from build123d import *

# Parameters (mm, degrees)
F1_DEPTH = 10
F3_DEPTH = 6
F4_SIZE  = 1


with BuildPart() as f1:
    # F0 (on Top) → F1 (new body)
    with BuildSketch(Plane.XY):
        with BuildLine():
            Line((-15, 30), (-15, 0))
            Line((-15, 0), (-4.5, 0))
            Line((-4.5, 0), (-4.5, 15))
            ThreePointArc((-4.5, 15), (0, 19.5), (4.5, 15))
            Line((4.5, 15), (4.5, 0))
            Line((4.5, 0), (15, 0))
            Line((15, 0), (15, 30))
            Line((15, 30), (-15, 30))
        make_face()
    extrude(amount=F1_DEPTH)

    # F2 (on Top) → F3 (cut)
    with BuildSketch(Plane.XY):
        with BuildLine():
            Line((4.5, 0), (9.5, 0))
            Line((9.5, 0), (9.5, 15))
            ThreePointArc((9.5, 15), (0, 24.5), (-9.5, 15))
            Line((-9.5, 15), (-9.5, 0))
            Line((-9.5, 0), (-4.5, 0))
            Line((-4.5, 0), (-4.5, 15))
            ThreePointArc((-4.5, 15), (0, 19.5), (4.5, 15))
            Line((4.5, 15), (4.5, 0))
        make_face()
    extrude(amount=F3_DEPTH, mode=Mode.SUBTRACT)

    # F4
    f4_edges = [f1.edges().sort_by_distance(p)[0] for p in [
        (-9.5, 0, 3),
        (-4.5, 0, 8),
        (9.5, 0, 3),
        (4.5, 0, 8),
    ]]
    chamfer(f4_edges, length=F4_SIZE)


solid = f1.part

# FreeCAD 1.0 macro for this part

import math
import FreeCAD as App
import Part
import Sketcher

V = App.Vector
Q = App.Units.Quantity


def edges_at(feature, points):
    """Names of the edges that pass closest to the given points."""
    edges = feature.Shape.Edges
    near = lambda p: min(range(len(edges)), key=lambda i: edges[i].distToShape(Part.Vertex(*p))[0])
    return sorted({f"Edge{near(p) + 1}" for p in points})

doc = App.newDocument("Part")
body = doc.addObject("PartDesign::Body", "Body")

# Sketch on XY plane
sketch1 = body.newObject("Sketcher::SketchObject", "Sketch")
sketch1.AttachmentSupport = (doc.getObject("XY_Plane"), [""])
sketch1.MapMode = "FlatFace"
sketch1.addGeometry(Part.LineSegment(V(-15, 30, 0), V(-15, 0, 0)), False)
sketch1.addGeometry(Part.LineSegment(V(-15, 0, 0), V(-4.5, 0, 0)), False)
sketch1.addGeometry(Part.LineSegment(V(-4.5, 0, 0), V(-4.5, 15, 0)), False)
sketch1.addGeometry(Part.ArcOfCircle(Part.Circle(V(0, 15, 0), V(0, 0, 1), 4.5), math.radians(0), math.radians(180)), False)
sketch1.addGeometry(Part.LineSegment(V(4.5, 15, 0), V(4.5, 0, 0)), False)
sketch1.addGeometry(Part.LineSegment(V(4.5, 0, 0), V(15, 0, 0)), False)
sketch1.addGeometry(Part.LineSegment(V(15, 0, 0), V(15, 30, 0)), False)
sketch1.addGeometry(Part.LineSegment(V(15, 30, 0), V(-15, 30, 0)), False)
sketch1.addConstraint(Sketcher.Constraint("Coincident", 0, 2, 1, 1))
sketch1.addConstraint(Sketcher.Constraint("Coincident", 1, 2, 2, 1))
sketch1.addConstraint(Sketcher.Constraint("Tangent", 2, 2, 3, 2))
sketch1.addConstraint(Sketcher.Constraint("Tangent", 3, 1, 4, 1))
sketch1.addConstraint(Sketcher.Constraint("Coincident", 4, 2, 5, 1))
sketch1.addConstraint(Sketcher.Constraint("Coincident", 5, 2, 6, 1))
sketch1.addConstraint(Sketcher.Constraint("Coincident", 6, 2, 7, 1))
sketch1.addConstraint(Sketcher.Constraint("Coincident", 7, 2, 0, 1))
sketch1.addConstraint(Sketcher.Constraint("Vertical", 0))
sketch1.addConstraint(Sketcher.Constraint("Horizontal", 1))
sketch1.addConstraint(Sketcher.Constraint("Vertical", 2))
sketch1.addConstraint(Sketcher.Constraint("Vertical", 4))
sketch1.addConstraint(Sketcher.Constraint("Horizontal", 5))
sketch1.addConstraint(Sketcher.Constraint("Vertical", 6))
sketch1.addConstraint(Sketcher.Constraint("Horizontal", 7))
sketch1.addConstraint(Sketcher.Constraint("Symmetric", 1, 2, 4, 2, -1, 1))
sketch1.addConstraint(Sketcher.Constraint("Symmetric", 0, 2, 5, 2, -2))
sketch1.addConstraint(Sketcher.Constraint("Equal", 7, 0))
sketch1.addConstraint(Sketcher.Constraint("Radius", 3, Q("4.5 mm")))
sketch1.addConstraint(Sketcher.Constraint("DistanceX", 7, 2, 7, 1, Q("30 mm")))
sketch1.addConstraint(Sketcher.Constraint("DistanceY", 2, 1, 2, 2, Q("15 mm")))
pad1 = body.newObject("PartDesign::Pad", "Pad")
pad1.Profile = sketch1
pad1.Length = 10

# Sketch on XY plane
sketch2 = body.newObject("Sketcher::SketchObject", "Sketch001")
sketch2.AttachmentSupport = (doc.getObject("XY_Plane"), [""])
sketch2.MapMode = "FlatFace"
sketch2.addGeometry(Part.LineSegment(V(4.5, 0, 0), V(9.5, 0, 0)), False)
sketch2.addGeometry(Part.LineSegment(V(9.5, 0, 0), V(9.5, 15, 0)), False)
sketch2.addGeometry(Part.ArcOfCircle(Part.Circle(V(0, 15, 0), V(0, 0, 1), 9.5), math.radians(0), math.radians(180)), False)
sketch2.addGeometry(Part.LineSegment(V(-9.5, 15, 0), V(-9.5, 0, 0)), False)
sketch2.addGeometry(Part.LineSegment(V(-9.5, 0, 0), V(-4.5, 0, 0)), False)
sketch2.addGeometry(Part.LineSegment(V(-4.5, 0, 0), V(-4.5, 15, 0)), False)
sketch2.addGeometry(Part.ArcOfCircle(Part.Circle(V(0, 15, 0), V(0, 0, 1), 4.5), math.radians(0), math.radians(180)), False)
sketch2.addGeometry(Part.LineSegment(V(4.5, 15, 0), V(4.5, 0, 0)), False)
sketch2.addConstraint(Sketcher.Constraint("Coincident", 0, 2, 1, 1))
sketch2.addConstraint(Sketcher.Constraint("Tangent", 1, 2, 2, 1))
sketch2.addConstraint(Sketcher.Constraint("Tangent", 2, 2, 3, 1))
sketch2.addConstraint(Sketcher.Constraint("Coincident", 3, 2, 4, 1))
sketch2.addConstraint(Sketcher.Constraint("Coincident", 4, 2, 5, 1))
sketch2.addConstraint(Sketcher.Constraint("Tangent", 5, 2, 6, 2))
sketch2.addConstraint(Sketcher.Constraint("Tangent", 6, 1, 7, 1))
sketch2.addConstraint(Sketcher.Constraint("Coincident", 7, 2, 0, 1))
sketch2.addConstraint(Sketcher.Constraint("Horizontal", 0))
sketch2.addConstraint(Sketcher.Constraint("Vertical", 1))
sketch2.addConstraint(Sketcher.Constraint("Vertical", 3))
sketch2.addConstraint(Sketcher.Constraint("Horizontal", 4))
sketch2.addConstraint(Sketcher.Constraint("Vertical", 5))
sketch2.addConstraint(Sketcher.Constraint("Vertical", 7))
sketch2.addConstraint(Sketcher.Constraint("Coincident", 6, 3, 2, 3))
sketch2.addConstraint(Sketcher.Constraint("Symmetric", 0, 2, 3, 2, -1, 1))
sketch2.addConstraint(Sketcher.Constraint("PointOnObject", 0, 2, -1))
sketch2.addConstraint(Sketcher.Constraint("Radius", 2, Q("9.5 mm")))
sketch2.addConstraint(Sketcher.Constraint("Radius", 6, Q("4.5 mm")))
sketch2.addConstraint(Sketcher.Constraint("DistanceY", 1, 1, 1, 2, Q("15 mm")))
pocket1 = body.newObject("PartDesign::Pocket", "Pocket")
pocket1.Profile = sketch2
pocket1.Length = 6
pocket1.Reversed = True
doc.recompute()

chamfer = body.newObject("PartDesign::Chamfer", "Chamfer")
chamfer.Base = (pocket1, edges_at(pocket1, [
    (-9.5, 0, 3),
    (-4.5, 0, 8),
    (9.5, 0, 3),
    (4.5, 0, 8),
]))
chamfer.Size = 1

doc.recompute()
